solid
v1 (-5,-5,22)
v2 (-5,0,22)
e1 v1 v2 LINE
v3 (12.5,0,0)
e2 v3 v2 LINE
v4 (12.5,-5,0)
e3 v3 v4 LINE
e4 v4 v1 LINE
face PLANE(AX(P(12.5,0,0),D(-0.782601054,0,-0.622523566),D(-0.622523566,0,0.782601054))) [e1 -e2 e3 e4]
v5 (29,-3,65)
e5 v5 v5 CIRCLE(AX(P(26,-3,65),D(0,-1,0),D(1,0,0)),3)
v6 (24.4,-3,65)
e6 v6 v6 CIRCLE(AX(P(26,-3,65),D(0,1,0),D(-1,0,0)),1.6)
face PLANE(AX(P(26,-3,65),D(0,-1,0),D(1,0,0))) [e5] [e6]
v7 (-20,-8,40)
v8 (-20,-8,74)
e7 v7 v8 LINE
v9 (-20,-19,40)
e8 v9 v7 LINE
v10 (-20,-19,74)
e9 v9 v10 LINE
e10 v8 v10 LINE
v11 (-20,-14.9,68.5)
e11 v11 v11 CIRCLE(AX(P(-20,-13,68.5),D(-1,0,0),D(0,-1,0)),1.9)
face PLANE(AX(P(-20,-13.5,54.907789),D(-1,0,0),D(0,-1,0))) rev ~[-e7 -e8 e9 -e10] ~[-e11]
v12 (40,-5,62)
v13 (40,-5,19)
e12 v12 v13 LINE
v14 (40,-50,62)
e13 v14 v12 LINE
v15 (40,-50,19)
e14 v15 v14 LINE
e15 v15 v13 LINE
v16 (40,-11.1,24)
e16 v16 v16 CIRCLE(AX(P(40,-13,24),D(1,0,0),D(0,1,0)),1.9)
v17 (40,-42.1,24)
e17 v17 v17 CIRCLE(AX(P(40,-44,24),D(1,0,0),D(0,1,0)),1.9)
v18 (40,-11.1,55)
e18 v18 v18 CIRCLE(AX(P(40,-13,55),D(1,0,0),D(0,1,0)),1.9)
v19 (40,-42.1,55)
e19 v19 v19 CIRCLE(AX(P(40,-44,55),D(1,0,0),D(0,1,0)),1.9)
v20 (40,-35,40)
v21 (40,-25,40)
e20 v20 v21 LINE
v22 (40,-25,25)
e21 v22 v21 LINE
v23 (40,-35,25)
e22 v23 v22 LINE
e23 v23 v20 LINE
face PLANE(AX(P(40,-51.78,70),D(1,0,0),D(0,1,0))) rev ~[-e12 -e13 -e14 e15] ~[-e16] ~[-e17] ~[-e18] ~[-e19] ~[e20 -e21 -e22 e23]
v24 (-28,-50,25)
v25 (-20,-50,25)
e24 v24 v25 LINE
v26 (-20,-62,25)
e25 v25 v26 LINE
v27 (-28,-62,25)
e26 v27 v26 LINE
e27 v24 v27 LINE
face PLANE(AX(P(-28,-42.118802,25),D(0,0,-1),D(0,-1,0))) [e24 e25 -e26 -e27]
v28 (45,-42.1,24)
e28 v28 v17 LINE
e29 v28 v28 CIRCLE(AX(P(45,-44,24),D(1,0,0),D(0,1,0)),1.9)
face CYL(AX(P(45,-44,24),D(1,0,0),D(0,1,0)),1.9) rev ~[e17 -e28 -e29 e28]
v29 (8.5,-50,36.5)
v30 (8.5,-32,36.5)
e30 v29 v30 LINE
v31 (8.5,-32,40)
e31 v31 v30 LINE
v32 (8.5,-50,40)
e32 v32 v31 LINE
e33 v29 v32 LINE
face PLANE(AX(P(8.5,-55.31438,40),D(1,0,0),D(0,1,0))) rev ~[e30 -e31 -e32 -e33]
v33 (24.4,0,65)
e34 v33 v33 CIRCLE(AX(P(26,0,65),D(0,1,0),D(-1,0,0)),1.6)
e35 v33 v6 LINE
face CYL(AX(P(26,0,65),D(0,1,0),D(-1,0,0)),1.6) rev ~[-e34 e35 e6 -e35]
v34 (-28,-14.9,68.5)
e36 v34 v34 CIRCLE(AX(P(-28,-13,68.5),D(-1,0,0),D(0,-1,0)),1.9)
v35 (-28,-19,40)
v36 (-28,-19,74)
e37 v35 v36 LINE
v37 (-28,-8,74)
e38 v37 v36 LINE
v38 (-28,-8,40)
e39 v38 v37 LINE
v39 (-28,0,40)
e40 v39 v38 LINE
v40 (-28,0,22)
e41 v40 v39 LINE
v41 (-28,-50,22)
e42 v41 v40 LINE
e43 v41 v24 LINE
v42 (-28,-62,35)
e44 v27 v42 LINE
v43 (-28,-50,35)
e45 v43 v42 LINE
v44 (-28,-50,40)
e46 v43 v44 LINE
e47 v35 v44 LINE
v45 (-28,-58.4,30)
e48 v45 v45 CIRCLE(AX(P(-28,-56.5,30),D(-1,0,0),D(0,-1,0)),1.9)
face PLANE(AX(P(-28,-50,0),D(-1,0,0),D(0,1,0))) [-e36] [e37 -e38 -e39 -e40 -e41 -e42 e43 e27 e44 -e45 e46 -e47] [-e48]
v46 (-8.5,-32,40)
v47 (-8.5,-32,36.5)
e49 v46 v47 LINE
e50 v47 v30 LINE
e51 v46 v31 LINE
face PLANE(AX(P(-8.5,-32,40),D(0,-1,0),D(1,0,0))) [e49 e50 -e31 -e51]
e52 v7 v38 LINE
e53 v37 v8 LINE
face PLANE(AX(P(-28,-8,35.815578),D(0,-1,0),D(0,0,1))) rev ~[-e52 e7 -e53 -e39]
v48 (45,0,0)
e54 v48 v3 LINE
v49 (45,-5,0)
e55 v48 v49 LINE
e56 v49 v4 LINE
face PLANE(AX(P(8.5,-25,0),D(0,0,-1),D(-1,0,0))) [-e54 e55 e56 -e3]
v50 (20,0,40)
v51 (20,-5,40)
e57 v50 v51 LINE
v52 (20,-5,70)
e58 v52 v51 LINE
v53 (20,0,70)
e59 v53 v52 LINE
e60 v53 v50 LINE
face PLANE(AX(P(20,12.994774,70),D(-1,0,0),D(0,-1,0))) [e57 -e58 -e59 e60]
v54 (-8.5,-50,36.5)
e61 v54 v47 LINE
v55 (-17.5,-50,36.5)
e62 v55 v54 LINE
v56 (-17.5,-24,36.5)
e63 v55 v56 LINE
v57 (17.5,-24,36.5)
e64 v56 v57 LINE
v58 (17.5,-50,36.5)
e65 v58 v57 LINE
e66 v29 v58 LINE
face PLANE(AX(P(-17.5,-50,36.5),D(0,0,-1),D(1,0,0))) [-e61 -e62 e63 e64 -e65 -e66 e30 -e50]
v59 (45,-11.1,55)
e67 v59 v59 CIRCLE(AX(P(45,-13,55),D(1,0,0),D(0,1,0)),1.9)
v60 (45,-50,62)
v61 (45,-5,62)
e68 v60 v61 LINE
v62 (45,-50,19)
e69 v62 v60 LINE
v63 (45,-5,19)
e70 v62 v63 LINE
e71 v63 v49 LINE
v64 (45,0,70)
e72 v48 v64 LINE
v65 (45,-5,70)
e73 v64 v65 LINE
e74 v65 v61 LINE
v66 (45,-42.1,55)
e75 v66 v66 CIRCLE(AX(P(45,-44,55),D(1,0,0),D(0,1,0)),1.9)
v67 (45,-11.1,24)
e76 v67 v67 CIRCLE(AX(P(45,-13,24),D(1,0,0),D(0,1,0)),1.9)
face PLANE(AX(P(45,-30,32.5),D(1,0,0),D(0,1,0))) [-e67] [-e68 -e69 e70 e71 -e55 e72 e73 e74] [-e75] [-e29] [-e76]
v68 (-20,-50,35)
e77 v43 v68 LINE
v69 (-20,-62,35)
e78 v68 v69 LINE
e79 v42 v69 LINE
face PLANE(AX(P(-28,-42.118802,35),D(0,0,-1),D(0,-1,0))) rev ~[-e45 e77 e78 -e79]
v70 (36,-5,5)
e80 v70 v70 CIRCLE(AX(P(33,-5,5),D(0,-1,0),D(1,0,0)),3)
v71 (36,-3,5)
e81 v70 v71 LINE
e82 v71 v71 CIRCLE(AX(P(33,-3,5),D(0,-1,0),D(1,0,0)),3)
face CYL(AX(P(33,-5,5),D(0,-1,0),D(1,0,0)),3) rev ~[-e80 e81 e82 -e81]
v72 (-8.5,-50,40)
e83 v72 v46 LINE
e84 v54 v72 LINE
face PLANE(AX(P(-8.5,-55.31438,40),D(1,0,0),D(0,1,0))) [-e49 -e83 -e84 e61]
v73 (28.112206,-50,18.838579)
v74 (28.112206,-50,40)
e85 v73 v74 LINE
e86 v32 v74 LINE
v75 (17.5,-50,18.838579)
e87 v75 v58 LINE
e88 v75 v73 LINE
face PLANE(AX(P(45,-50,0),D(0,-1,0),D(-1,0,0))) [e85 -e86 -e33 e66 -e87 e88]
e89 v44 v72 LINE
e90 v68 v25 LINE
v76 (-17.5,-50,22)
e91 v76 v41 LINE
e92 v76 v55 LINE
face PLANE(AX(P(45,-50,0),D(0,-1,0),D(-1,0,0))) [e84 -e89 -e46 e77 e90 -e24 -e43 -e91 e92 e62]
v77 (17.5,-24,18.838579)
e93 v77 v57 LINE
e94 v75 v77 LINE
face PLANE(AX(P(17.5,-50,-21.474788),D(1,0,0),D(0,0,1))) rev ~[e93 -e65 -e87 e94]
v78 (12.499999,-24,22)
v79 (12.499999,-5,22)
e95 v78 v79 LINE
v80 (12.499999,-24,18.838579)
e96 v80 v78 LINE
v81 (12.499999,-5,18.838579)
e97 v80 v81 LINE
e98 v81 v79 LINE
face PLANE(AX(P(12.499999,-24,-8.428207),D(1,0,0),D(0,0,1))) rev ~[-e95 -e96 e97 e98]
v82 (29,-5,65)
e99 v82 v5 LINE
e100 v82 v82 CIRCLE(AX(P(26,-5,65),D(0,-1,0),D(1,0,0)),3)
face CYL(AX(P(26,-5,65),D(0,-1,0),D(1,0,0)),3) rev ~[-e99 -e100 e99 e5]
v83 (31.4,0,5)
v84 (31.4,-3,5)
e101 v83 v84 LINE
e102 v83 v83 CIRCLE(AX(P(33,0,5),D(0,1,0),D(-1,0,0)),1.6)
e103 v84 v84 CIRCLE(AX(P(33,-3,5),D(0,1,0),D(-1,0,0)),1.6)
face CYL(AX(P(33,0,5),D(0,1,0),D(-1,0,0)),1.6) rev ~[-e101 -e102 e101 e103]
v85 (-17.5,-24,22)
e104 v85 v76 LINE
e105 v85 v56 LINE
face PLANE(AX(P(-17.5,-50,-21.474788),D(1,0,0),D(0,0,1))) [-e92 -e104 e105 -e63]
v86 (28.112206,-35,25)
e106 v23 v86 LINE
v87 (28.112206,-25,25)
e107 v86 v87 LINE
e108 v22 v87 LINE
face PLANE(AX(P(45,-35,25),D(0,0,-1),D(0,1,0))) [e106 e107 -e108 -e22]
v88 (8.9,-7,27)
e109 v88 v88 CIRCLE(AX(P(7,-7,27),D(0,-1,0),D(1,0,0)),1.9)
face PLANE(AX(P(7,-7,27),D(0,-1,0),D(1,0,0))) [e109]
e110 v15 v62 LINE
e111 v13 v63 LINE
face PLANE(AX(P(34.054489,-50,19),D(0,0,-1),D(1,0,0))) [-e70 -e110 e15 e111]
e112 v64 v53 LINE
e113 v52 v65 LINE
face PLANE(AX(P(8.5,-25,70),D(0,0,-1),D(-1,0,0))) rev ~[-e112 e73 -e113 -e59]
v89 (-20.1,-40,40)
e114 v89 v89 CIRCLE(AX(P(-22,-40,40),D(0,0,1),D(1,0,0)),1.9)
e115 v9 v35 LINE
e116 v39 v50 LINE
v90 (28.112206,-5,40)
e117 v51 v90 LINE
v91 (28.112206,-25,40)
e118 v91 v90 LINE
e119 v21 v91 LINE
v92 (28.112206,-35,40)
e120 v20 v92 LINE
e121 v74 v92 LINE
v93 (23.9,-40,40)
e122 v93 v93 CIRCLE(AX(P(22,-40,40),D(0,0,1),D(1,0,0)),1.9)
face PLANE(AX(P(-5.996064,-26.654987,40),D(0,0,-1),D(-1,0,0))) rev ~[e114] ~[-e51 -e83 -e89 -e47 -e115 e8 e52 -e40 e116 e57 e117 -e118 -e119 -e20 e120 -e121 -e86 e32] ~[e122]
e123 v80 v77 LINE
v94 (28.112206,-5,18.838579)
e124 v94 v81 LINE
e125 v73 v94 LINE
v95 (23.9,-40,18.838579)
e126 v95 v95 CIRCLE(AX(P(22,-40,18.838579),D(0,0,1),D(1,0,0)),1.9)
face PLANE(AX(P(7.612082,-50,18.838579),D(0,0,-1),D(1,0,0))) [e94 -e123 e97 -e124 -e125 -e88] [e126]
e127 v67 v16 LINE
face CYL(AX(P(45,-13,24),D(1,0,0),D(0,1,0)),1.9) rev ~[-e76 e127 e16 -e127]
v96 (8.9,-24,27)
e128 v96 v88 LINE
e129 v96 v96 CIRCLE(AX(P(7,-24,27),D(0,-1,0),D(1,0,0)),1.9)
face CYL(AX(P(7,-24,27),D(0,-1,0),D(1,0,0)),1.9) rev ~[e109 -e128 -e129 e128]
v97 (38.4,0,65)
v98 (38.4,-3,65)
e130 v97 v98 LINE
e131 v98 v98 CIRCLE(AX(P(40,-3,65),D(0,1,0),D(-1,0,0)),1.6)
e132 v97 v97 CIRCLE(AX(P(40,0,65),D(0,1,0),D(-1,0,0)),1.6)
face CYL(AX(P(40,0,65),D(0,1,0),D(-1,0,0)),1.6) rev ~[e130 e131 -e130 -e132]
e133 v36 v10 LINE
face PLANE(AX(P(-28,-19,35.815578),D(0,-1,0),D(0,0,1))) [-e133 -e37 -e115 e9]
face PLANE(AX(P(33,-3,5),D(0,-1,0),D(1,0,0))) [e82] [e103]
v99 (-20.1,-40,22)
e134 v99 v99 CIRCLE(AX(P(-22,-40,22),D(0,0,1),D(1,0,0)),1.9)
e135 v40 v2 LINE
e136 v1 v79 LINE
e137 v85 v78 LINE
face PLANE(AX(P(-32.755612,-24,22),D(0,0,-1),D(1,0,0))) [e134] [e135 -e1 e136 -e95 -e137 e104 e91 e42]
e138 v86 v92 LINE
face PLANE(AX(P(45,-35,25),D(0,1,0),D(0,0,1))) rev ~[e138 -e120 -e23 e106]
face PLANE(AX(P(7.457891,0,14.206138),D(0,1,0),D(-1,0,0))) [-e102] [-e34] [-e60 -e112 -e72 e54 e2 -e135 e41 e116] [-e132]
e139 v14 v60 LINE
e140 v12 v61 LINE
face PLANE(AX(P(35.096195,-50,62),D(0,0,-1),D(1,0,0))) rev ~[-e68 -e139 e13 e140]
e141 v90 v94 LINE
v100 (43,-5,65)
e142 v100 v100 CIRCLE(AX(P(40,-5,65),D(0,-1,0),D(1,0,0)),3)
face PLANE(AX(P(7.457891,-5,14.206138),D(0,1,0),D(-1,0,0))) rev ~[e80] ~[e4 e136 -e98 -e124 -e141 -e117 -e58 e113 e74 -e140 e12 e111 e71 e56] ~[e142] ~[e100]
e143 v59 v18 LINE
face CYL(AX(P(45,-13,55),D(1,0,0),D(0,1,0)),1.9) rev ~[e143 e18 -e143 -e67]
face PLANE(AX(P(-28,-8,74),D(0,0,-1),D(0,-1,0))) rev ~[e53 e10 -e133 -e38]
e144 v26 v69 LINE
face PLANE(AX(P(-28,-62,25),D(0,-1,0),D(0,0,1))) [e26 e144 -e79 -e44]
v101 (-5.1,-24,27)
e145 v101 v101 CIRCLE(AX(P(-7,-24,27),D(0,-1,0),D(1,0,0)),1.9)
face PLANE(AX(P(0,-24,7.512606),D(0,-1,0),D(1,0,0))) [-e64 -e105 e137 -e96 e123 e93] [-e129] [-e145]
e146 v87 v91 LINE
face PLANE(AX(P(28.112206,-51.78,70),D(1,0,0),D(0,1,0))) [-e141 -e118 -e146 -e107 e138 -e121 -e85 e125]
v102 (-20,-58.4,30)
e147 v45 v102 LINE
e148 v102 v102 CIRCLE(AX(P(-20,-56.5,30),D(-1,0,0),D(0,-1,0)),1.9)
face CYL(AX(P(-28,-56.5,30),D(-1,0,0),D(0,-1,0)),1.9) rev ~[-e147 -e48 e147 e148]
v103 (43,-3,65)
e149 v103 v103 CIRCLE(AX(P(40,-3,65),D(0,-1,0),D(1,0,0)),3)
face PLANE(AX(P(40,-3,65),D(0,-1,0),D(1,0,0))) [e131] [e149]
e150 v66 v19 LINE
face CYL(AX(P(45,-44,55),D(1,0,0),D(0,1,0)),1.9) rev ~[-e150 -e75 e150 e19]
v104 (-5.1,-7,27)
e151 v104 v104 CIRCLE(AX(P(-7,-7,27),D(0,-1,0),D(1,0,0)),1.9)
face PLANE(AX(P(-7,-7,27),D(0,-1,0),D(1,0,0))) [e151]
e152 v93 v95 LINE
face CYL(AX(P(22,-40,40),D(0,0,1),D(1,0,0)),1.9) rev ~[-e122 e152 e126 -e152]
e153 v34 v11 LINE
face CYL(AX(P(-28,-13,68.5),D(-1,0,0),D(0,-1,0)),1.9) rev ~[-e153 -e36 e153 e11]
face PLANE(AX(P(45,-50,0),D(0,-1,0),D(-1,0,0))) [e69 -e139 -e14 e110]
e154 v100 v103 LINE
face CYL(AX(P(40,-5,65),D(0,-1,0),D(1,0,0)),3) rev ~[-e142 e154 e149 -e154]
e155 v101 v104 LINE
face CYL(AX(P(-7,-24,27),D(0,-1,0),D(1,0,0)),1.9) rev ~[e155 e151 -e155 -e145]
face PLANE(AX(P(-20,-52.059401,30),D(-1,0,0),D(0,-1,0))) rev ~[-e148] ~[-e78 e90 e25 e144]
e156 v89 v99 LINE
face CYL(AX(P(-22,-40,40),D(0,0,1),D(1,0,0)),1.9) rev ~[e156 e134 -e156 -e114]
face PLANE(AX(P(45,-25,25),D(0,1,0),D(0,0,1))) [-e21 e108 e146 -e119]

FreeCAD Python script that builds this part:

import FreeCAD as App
import Part
import Sketcher
Q = App.Units.Quantity

doc = App.newDocument("Part")
body = doc.addObject("PartDesign::Body", "Body")

sketch1 = body.newObject("Sketcher::SketchObject", "Sketch")
sketch1.AttachmentSupport = (doc.getObject("XY_Plane"), [""])
sketch1.MapMode = "FlatFace"
sketch1.addGeometry([
    Part.LineSegment(App.Vector(45, 0, 0), App.Vector(-28, 0, 0)),
    Part.LineSegment(App.Vector(-28, 0, 0), App.Vector(-28, -50, 0)),
    Part.LineSegment(App.Vector(-28, -50, 0), App.Vector(45, -50, 0)),
    Part.LineSegment(App.Vector(45, -50, 0), App.Vector(45, 0, 0)),
], False)
sketch1.addConstraint([
    Sketcher.Constraint("Coincident", 0, 2, 1, 1),
    Sketcher.Constraint("Coincident", 1, 2, 2, 1),
    Sketcher.Constraint("Coincident", 2, 2, 3, 1),
    Sketcher.Constraint("Coincident", 3, 2, 0, 1),
    Sketcher.Constraint("Horizontal", 0),
    Sketcher.Constraint("Vertical", 1),
    Sketcher.Constraint("Horizontal", 2),
    Sketcher.Constraint("Vertical", 3),
    Sketcher.Constraint("PointOnObject", 0, 2, -1),
    Sketcher.Constraint("DistanceX", 0, 2, 0, 1, Q("73 mm")),
    Sketcher.Constraint("DistanceY", 1, 2, 1, 1, Q("50 mm")),
    Sketcher.Constraint("DistanceX", 0, 2, -1, 1, Q("28 mm")),
])
pad1 = body.newObject("PartDesign::Pad", "Pad")
pad1.Profile = sketch1
pad1.Length = 70

sketch2 = body.newObject("Sketcher::SketchObject", "Sketch001")
sketch2.AttachmentSupport = (doc.getObject("XY_Plane"), [""])
sketch2.MapMode = "FlatFace"
sketch2.AttachmentOffset = App.Placement(App.Vector(0, 0, 70), App.Rotation())
sketch2.addGeometry([
    Part.LineSegment(App.Vector(28, -5, 0), App.Vector(28, -52, 0)),
    Part.LineSegment(App.Vector(28, -52, 0), App.Vector(40, -52, 0)),
    Part.LineSegment(App.Vector(40, -52, 0), App.Vector(40, -5, 0)),
    Part.LineSegment(App.Vector(40, -5, 0), App.Vector(28, -5, 0)),
], False)
sketch2.addConstraint([
    Sketcher.Constraint("Coincident", 0, 2, 1, 1),
    Sketcher.Constraint("Coincident", 1, 2, 2, 1),
    Sketcher.Constraint("Coincident", 2, 2, 3, 1),
    Sketcher.Constraint("Coincident", 3, 2, 0, 1),
    Sketcher.Constraint("Vertical", 0),
    Sketcher.Constraint("Horizontal", 1),
    Sketcher.Constraint("Vertical", 2),
    Sketcher.Constraint("Horizontal", 3),
    Sketcher.Constraint("DistanceX", -1, 1, 1, 2, Q("40 mm")),
    Sketcher.Constraint("DistanceY", 2, 2, -1, 1, Q("5 mm")),
    Sketcher.Constraint("DistanceY", 0, 2, 0, 1, Q("46.78 mm")),
    Sketcher.Constraint("DistanceX", 1, 1, 1, 2, Q("11.887794 mm")),
])
pocket1 = body.newObject("PartDesign::Pocket", "Pocket")
pocket1.Profile = sketch2
pocket1.Type = "ThroughAll"

sketch3 = body.newObject("Sketcher::SketchObject", "Sketch002")
sketch3.AttachmentSupport = (doc.getObject("XY_Plane"), [""])
sketch3.MapMode = "FlatFace"
sketch3.AttachmentOffset = App.Placement(App.Vector(0, 0, 70), App.Rotation())
sketch3.addGeometry([
    Part.LineSegment(App.Vector(30, -65, 0), App.Vector(30, -5, 0)),
    Part.LineSegment(App.Vector(30, -5, 0), App.Vector(20, -5, 0)),
    Part.LineSegment(App.Vector(20, -5, 0), App.Vector(20, 13, 0)),
    Part.LineSegment(App.Vector(20, 13, 0), App.Vector(-41, 13, 0)),
    Part.LineSegment(App.Vector(-41, 13, 0), App.Vector(-41, -65, 0)),
    Part.LineSegment(App.Vector(-41, -65, 0), App.Vector(30, -65, 0)),
], False)
sketch3.addConstraint([
    Sketcher.Constraint("Coincident", 0, 2, 1, 1),
    Sketcher.Constraint("Coincident", 1, 2, 2, 1),
    Sketcher.Constraint("Coincident", 2, 2, 3, 1),
    Sketcher.Constraint("Coincident", 3, 2, 4, 1),
    Sketcher.Constraint("Coincident", 4, 2, 5, 1),
    Sketcher.Constraint("Coincident", 5, 2, 0, 1),
    Sketcher.Constraint("Vertical", 0),
    Sketcher.Constraint("Horizontal", 1),
    Sketcher.Constraint("Vertical", 2),
    Sketcher.Constraint("Horizontal", 3),
    Sketcher.Constraint("Vertical", 4),
    Sketcher.Constraint("Horizontal", 5),
    Sketcher.Constraint("DistanceX", 1, 2, 1, 1, Q("10 mm")),
    Sketcher.Constraint("DistanceX", -1, 1, 0, 2, Q("30 mm")),
    Sketcher.Constraint("DistanceY", 0, 2, -1, 1, Q("5 mm")),
    Sketcher.Constraint("DistanceY", 4, 2, 4, 1, Q("78.090798 mm")),
    Sketcher.Constraint("DistanceX", 3, 2, 3, 1, Q("60.783405 mm")),
    Sketcher.Constraint("DistanceY", 0, 1, 0, 2, Q("60.096024 mm")),
])
pocket2 = body.newObject("PartDesign::Pocket", "Pocket001")
pocket2.Profile = sketch3
pocket2.Length = 30

sketch4 = body.newObject("Sketcher::SketchObject", "Sketch003")
sketch4.AttachmentSupport = (doc.getObject("XY_Plane"), [""])
sketch4.MapMode = "FlatFace"
sketch4.AttachmentOffset = App.Placement(App.Vector(0, 0, 40), App.Rotation())
sketch4.addGeometry([
    Part.Circle(App.Vector(-22, -40, 0), App.Vector(0, 0, 1), 1.9),
    Part.Circle(App.Vector(22, -40, 0), App.Vector(0, 0, 1), 1.9),
], False)
sketch4.addConstraint([
    Sketcher.Constraint("Equal", 0, 1),
    Sketcher.Constraint("Symmetric", 0, 3, 1, 3, -2),
    Sketcher.Constraint("Diameter", 0, Q("3.8 mm")),
    Sketcher.Constraint("DistanceX", 0, 3, -1, 1, Q("22 mm")),
    Sketcher.Constraint("DistanceY", 0, 3, -1, 1, Q("40 mm")),
])
pocket3 = body.newObject("PartDesign::Pocket", "Pocket002")
pocket3.Profile = sketch4
pocket3.Type = "ThroughAll"

sketch5 = body.newObject("Sketcher::SketchObject", "Sketch004")
sketch5.AttachmentSupport = (doc.getObject("XY_Plane"), [""])
sketch5.MapMode = "FlatFace"
sketch5.AttachmentOffset = App.Placement(App.Vector(0, 0, 40), App.Rotation())
sketch5.addGeometry([
    Part.LineSegment(App.Vector(-8, -32, 0), App.Vector(-8, -55, 0)),
    Part.LineSegment(App.Vector(-8, -55, 0), App.Vector(8, -55, 0)),
    Part.LineSegment(App.Vector(8, -55, 0), App.Vector(8, -32, 0)),
    Part.LineSegment(App.Vector(8, -32, 0), App.Vector(-8, -32, 0)),
], False)
sketch5.addConstraint([
    Sketcher.Constraint("Coincident", 0, 2, 1, 1),
    Sketcher.Constraint("Coincident", 1, 2, 2, 1),
    Sketcher.Constraint("Coincident", 2, 2, 3, 1),
    Sketcher.Constraint("Coincident", 3, 2, 0, 1),
    Sketcher.Constraint("Vertical", 0),
    Sketcher.Constraint("Horizontal", 1),
    Sketcher.Constraint("Vertical", 2),
    Sketcher.Constraint("Horizontal", 3),
    Sketcher.Constraint("DistanceX", 1, 1, 1, 2, Q("17 mm")),
    Sketcher.Constraint("DistanceY", 2, 2, -1, 1, Q("32 mm")),
    Sketcher.Constraint("DistanceX", 0, 2, -1, 1, Q("8.5 mm")),
    Sketcher.Constraint("DistanceY", 0, 2, 0, 1, Q("23.314381 mm")),
])
pocket4 = body.newObject("PartDesign::Pocket", "Pocket003")
pocket4.Profile = sketch5
pocket4.Type = "ThroughAll"

sketch6 = body.newObject("Sketcher::SketchObject", "Sketch005")
sketch6.AttachmentSupport = (doc.getObject("XZ_Plane"), [""])
sketch6.MapMode = "FlatFace"
sketch6.AttachmentOffset = App.Placement(App.Vector(0, 0, 50), App.Rotation())
sketch6.addGeometry([
    Part.LineSegment(App.Vector(-18, 37, 0), App.Vector(-18, -21, 0)),
    Part.LineSegment(App.Vector(-18, -21, 0), App.Vector(18, -21, 0)),
    Part.LineSegment(App.Vector(18, -21, 0), App.Vector(18, 37, 0)),
    Part.LineSegment(App.Vector(18, 37, 0), App.Vector(-18, 37, 0)),
], False)
sketch6.addConstraint([
    Sketcher.Constraint("Coincident", 0, 2, 1, 1),
    Sketcher.Constraint("Coincident", 1, 2, 2, 1),
    Sketcher.Constraint("Coincident", 2, 2, 3, 1),
    Sketcher.Constraint("Coincident", 3, 2, 0, 1),
    Sketcher.Constraint("Vertical", 0),
    Sketcher.Constraint("Horizontal", 1),
    Sketcher.Constraint("Vertical", 2),
    Sketcher.Constraint("Horizontal", 3),
    Sketcher.Constraint("DistanceX", 1, 1, 1, 2, Q("35 mm")),
    Sketcher.Constraint("DistanceX", 0, 2, -1, 1, Q("17.5 mm")),
    Sketcher.Constraint("DistanceY", -1, 1, 2, 2, Q("36.5 mm")),
    Sketcher.Constraint("DistanceY", 0, 2, 0, 1, Q("57.974789 mm")),
])
pocket5 = body.newObject("PartDesign::Pocket", "Pocket004")
pocket5.Profile = sketch6
pocket5.Length = 26

sketch7 = body.newObject("Sketcher::SketchObject", "Sketch006")
sketch7.AttachmentSupport = (doc.getObject("XZ_Plane"), [""])
sketch7.MapMode = "FlatFace"
sketch7.AttachmentOffset = App.Placement(App.Vector(0, 0, 24), App.Rotation())
sketch7.addGeometry([
    Part.LineSegment(App.Vector(-33, 22, 0), App.Vector(-33, -8, 0)),
    Part.LineSegment(App.Vector(-33, -8, 0), App.Vector(12, -8, 0)),
    Part.LineSegment(App.Vector(12, -8, 0), App.Vector(12, 22, 0)),
    Part.LineSegment(App.Vector(12, 22, 0), App.Vector(-33, 22, 0)),
], False)
sketch7.addConstraint([
    Sketcher.Constraint("Coincident", 0, 2, 1, 1),
    Sketcher.Constraint("Coincident", 1, 2, 2, 1),
    Sketcher.Constraint("Coincident", 2, 2, 3, 1),
    Sketcher.Constraint("Coincident", 3, 2, 0, 1),
    Sketcher.Constraint("Vertical", 0),
    Sketcher.Constraint("Horizontal", 1),
    Sketcher.Constraint("Vertical", 2),
    Sketcher.Constraint("Horizontal", 3),
    Sketcher.Constraint("DistanceY", -1, 1, 2, 2, Q("22 mm")),
    Sketcher.Constraint("DistanceX", -1, 1, 1, 2, Q("12.499999 mm")),
    Sketcher.Constraint("DistanceX", 1, 1, 1, 2, Q("45.255611 mm")),
    Sketcher.Constraint("DistanceY", 0, 2, 0, 1, Q("30.428207 mm")),
])
pocket6 = body.newObject("PartDesign::Pocket", "Pocket005")
pocket6.Profile = sketch7
pocket6.Type = "ThroughAll"
pocket6.Midplane = True

sketch8 = body.newObject("Sketcher::SketchObject", "Sketch007")
sketch8.AttachmentSupport = (doc.getObject("XZ_Plane"), [""])
sketch8.MapMode = "FlatFace"
sketch8.AttachmentOffset = App.Placement(App.Vector(0, 0, 50), App.Rotation())
sketch8.addGeometry([
    Part.LineSegment(App.Vector(8, 19, 0), App.Vector(8, -11, 0)),
    Part.LineSegment(App.Vector(8, -11, 0), App.Vector(34, -11, 0)),
    Part.LineSegment(App.Vector(34, -11, 0), App.Vector(34, 19, 0)),
    Part.LineSegment(App.Vector(34, 19, 0), App.Vector(8, 19, 0)),
], False)
sketch8.addConstraint([
    Sketcher.Constraint("Coincident", 0, 2, 1, 1),
    Sketcher.Constraint("Coincident", 1, 2, 2, 1),
    Sketcher.Constraint("Coincident", 2, 2, 3, 1),
    Sketcher.Constraint("Coincident", 3, 2, 0, 1),
    Sketcher.Constraint("Vertical", 0),
    Sketcher.Constraint("Horizontal", 1),
    Sketcher.Constraint("Vertical", 2),
    Sketcher.Constraint("Horizontal", 3),
    Sketcher.Constraint("DistanceX", 1, 1, 1, 2, Q("26.242121 mm")),
    Sketcher.Constraint("DistanceY", 0, 2, 0, 1, Q("29.741062 mm")),
    Sketcher.Constraint("DistanceX", -1, 1, 0, 2, Q("7.612082 mm")),
    Sketcher.Constraint("DistanceY", -1, 1, 2, 2, Q("18.838579 mm")),
])
pocket7 = body.newObject("PartDesign::Pocket", "Pocket006")
pocket7.Profile = sketch8
pocket7.Length = 45

sketch9 = body.newObject("Sketcher::SketchObject", "Sketch008")
sketch9.AttachmentSupport = (doc.getObject("XZ_Plane"), [""])
sketch9.MapMode = "FlatFace"
sketch9.AttachmentOffset = App.Placement(App.Vector(0, 0, 50), App.Rotation())
sketch9.addGeometry([
    Part.LineSegment(App.Vector(35, 76, 0), App.Vector(35, 62, 0)),
    Part.LineSegment(App.Vector(35, 62, 0), App.Vector(51, 62, 0)),
    Part.LineSegment(App.Vector(51, 62, 0), App.Vector(51, 76, 0)),
    Part.LineSegment(App.Vector(51, 76, 0), App.Vector(35, 76, 0)),
    Part.LineSegment(App.Vector(34, 19, 0), App.Vector(34, -13, 0)),
    Part.LineSegment(App.Vector(34, -13, 0), App.Vector(59, -13, 0)),
    Part.LineSegment(App.Vector(59, -13, 0), App.Vector(59, 19, 0)),
    Part.LineSegment(App.Vector(59, 19, 0), App.Vector(34, 19, 0)),
], False)
sketch9.addConstraint([
    Sketcher.Constraint("Coincident", 0, 2, 1, 1),
    Sketcher.Constraint("Coincident", 1, 2, 2, 1),
    Sketcher.Constraint("Coincident", 2, 2, 3, 1),
    Sketcher.Constraint("Coincident", 3, 2, 0, 1),
    Sketcher.Constraint("Coincident", 4, 2, 5, 1),
    Sketcher.Constraint("Coincident", 5, 2, 6, 1),
    Sketcher.Constraint("Coincident", 6, 2, 7, 1),
    Sketcher.Constraint("Coincident", 7, 2, 4, 1),
    Sketcher.Constraint("Vertical", 0),
    Sketcher.Constraint("Horizontal", 1),
    Sketcher.Constraint("Vertical", 2),
    Sketcher.Constraint("Horizontal", 3),
    Sketcher.Constraint("Vertical", 4),
    Sketcher.Constraint("Horizontal", 5),
    Sketcher.Constraint("Vertical", 6),
    Sketcher.Constraint("Horizontal", 7),
    Sketcher.Constraint("DistanceY", -1, 1, 0, 2, Q("62 mm")),
    Sketcher.Constraint("DistanceY", -1, 1, 6, 2, Q("19 mm")),
    Sketcher.Constraint("DistanceY", 4, 2, 4, 1, Q("31.67345 mm")),
    Sketcher.Constraint("DistanceX", 1, 1, 1, 2, Q("15.625622 mm")),
    Sketcher.Constraint("DistanceX", 5, 1, 5, 2, Q("24.610352 mm")),
    Sketcher.Constraint("DistanceY", 0, 2, 0, 1, Q("14.392597 mm")),
    Sketcher.Constraint("DistanceX", -1, 1, 4, 2, Q("34.054489 mm")),
    Sketcher.Constraint("DistanceX", 4, 2, 1, 2, Q("16.667328 mm")),
])
pocket8 = body.newObject("PartDesign::Pocket", "Pocket007")
pocket8.Profile = sketch9
pocket8.Length = 45

sketch10 = body.newObject("Sketcher::SketchObject", "Sketch009")
sketch10.AttachmentSupport = (doc.getObject("YZ_Plane"), [""])
sketch10.MapMode = "FlatFace"
sketch10.AttachmentOffset = App.Placement(App.Vector(0, 0, 45), App.Rotation())
sketch10.addGeometry([
    Part.Circle(App.Vector(-44, 55, 0), App.Vector(0, 0, 1), 1.9),
    Part.Circle(App.Vector(-13, 24, 0), App.Vector(0, 0, 1), 1.9),
    Part.Circle(App.Vector(-13, 55, 0), App.Vector(0, 0, 1), 1.9),
    Part.Circle(App.Vector(-44, 24, 0), App.Vector(0, 0, 1), 1.9),
], False)
sketch10.addConstraint([
    Sketcher.Constraint("Equal", 0, 1),
    Sketcher.Constraint("Equal", 1, 2),
    Sketcher.Constraint("Equal", 2, 3),
    Sketcher.Constraint("Horizontal", 0, 3, 2, 3),
    Sketcher.Constraint("Horizontal", 1, 3, 3, 3),
    Sketcher.Constraint("Vertical", 1, 3, 2, 3),
    Sketcher.Constraint("Vertical", 0, 3, 3, 3),
    Sketcher.Constraint("Diameter", 0, Q("3.8 mm")),
    Sketcher.Constraint("DistanceX", 0, 3, -1, 1, Q("44 mm")),
    Sketcher.Constraint("DistanceY", -1, 1, 0, 3, Q("55 mm")),
    Sketcher.Constraint("DistanceX", 1, 3, -1, 1, Q("13 mm")),
    Sketcher.Constraint("DistanceY", -1, 1, 1, 3, Q("24 mm")),
])
pocket9 = body.newObject("PartDesign::Pocket", "Pocket008")
pocket9.Profile = sketch10
pocket9.Length = 13

sketch11 = body.newObject("Sketcher::SketchObject", "Sketch010")
sketch11.AttachmentSupport = (doc.getObject("XZ_Plane"), [""])
sketch11.MapMode = "FlatFace"
sketch11.addGeometry([
    Part.Circle(App.Vector(33, 5, 0), App.Vector(0, 0, 1), 1.6),
    Part.Circle(App.Vector(40, 65, 0), App.Vector(0, 0, 1), 1.6),
    Part.Circle(App.Vector(26, 65, 0), App.Vector(0, 0, 1), 1.6),
], False)
sketch11.addConstraint([
    Sketcher.Constraint("Equal", 0, 1),
    Sketcher.Constraint("Equal", 1, 2),
    Sketcher.Constraint("Horizontal", 1, 3, 2, 3),
    Sketcher.Constraint("Diameter", 0, Q("3.2 mm")),
    Sketcher.Constraint("DistanceX", -1, 1, 0, 3, Q("33 mm")),
    Sketcher.Constraint("DistanceY", -1, 1, 0, 3, Q("5 mm")),
    Sketcher.Constraint("DistanceX", -1, 1, 1, 3, Q("40 mm")),
    Sketcher.Constraint("DistanceY", -1, 1, 1, 3, Q("65 mm")),
    Sketcher.Constraint("DistanceX", -1, 1, 2, 3, Q("26 mm")),
])
pocket10 = body.newObject("PartDesign::Pocket", "Pocket009")
pocket10.Profile = sketch11
pocket10.Length = 5
pocket10.Reversed = True

sketch12 = body.newObject("Sketcher::SketchObject", "Sketch011")
sketch12.AttachmentSupport = (doc.getObject("YZ_Plane"), [""])
sketch12.MapMode = "FlatFace"
sketch12.AttachmentOffset = App.Placement(App.Vector(0, 0, 45), App.Rotation())
sketch12.addGeometry([
    Part.LineSegment(App.Vector(-35, 40, 0), App.Vector(-35, 25, 0)),
    Part.LineSegment(App.Vector(-35, 25, 0), App.Vector(-25, 25, 0)),
    Part.LineSegment(App.Vector(-25, 25, 0), App.Vector(-25, 40, 0)),
    Part.LineSegment(App.Vector(-25, 40, 0), App.Vector(-35, 40, 0)),
], False)
sketch12.addConstraint([
    Sketcher.Constraint("Coincident", 0, 2, 1, 1),
    Sketcher.Constraint("Coincident", 1, 2, 2, 1),
    Sketcher.Constraint("Coincident", 2, 2, 3, 1),
    Sketcher.Constraint("Coincident", 3, 2, 0, 1),
    Sketcher.Constraint("Vertical", 0),
    Sketcher.Constraint("Horizontal", 1),
    Sketcher.Constraint("Vertical", 2),
    Sketcher.Constraint("Horizontal", 3),
    Sketcher.Constraint("DistanceX", 1, 1, 1, 2, Q("10 mm")),
    Sketcher.Constraint("DistanceY", 0, 2, 0, 1, Q("15 mm")),
    Sketcher.Constraint("DistanceX", 0, 2, -1, 1, Q("35 mm")),
    Sketcher.Constraint("DistanceY", -1, 1, 0, 2, Q("25 mm")),
])
pad2 = body.newObject("PartDesign::Pad", "Pad001")
pad2.Profile = sketch12
pad2.Length = 23
pad2.Reversed = True

sketch13 = body.newObject("Sketcher::SketchObject", "Sketch012")
sketch13.AttachmentSupport = (doc.getObject("YZ_Plane"), [""])
sketch13.MapMode = "FlatFace"
sketch13.AttachmentOffset = App.Placement(App.Vector(0, 0, -28), App.Rotation())
sketch13.addGeometry([
    Part.LineSegment(App.Vector(-8, 74, 0), App.Vector(-8, 36, 0)),
    Part.LineSegment(App.Vector(-8, 36, 0), App.Vector(-19, 36, 0)),
    Part.LineSegment(App.Vector(-19, 36, 0), App.Vector(-19, 74, 0)),
    Part.LineSegment(App.Vector(-19, 74, 0), App.Vector(-8, 74, 0)),
    Part.LineSegment(App.Vector(-42, 35, 0), App.Vector(-42, 25, 0)),
    Part.LineSegment(App.Vector(-42, 25, 0), App.Vector(-62, 25, 0)),
    Part.LineSegment(App.Vector(-62, 25, 0), App.Vector(-62, 35, 0)),
    Part.LineSegment(App.Vector(-62, 35, 0), App.Vector(-42, 35, 0)),
], False)
sketch13.addConstraint([
    Sketcher.Constraint("Coincident", 0, 2, 1, 1),
    Sketcher.Constraint("Coincident", 1, 2, 2, 1),
    Sketcher.Constraint("Coincident", 2, 2, 3, 1),
    Sketcher.Constraint("Coincident", 3, 2, 0, 1),
    Sketcher.Constraint("Coincident", 4, 2, 5, 1),
    Sketcher.Constraint("Coincident", 5, 2, 6, 1),
    Sketcher.Constraint("Coincident", 6, 2, 7, 1),
    Sketcher.Constraint("Coincident", 7, 2, 4, 1),
    Sketcher.Constraint("Vertical", 0),
    Sketcher.Constraint("Horizontal", 1),
    Sketcher.Constraint("Vertical", 2),
    Sketcher.Constraint("Horizontal", 3),
    Sketcher.Constraint("Vertical", 4),
    Sketcher.Constraint("Horizontal", 5),
    Sketcher.Constraint("Vertical", 6),
    Sketcher.Constraint("Horizontal", 7),
    Sketcher.Constraint("DistanceX", 1, 2, 1, 1, Q("11 mm")),
    Sketcher.Constraint("DistanceY", 4, 2, 4, 1, Q("10 mm")),
    Sketcher.Constraint("DistanceX", 0, 2, -1, 1, Q("8 mm")),
    Sketcher.Constraint("DistanceY", -1, 1, 2, 2, Q("74 mm")),
    Sketcher.Constraint("DistanceY", -1, 1, 4, 2, Q("25 mm")),
    Sketcher.Constraint("DistanceX", 5, 2, -1, 1, Q("62 mm")),
    Sketcher.Constraint("DistanceY", 0, 2, 0, 1, Q("38.184422 mm")),
    Sketcher.Constraint("DistanceX", 5, 2, 5, 1, Q("19.881198 mm")),
])
pad3 = body.newObject("PartDesign::Pad", "Pad002")
pad3.Profile = sketch13
pad3.Length = 8

sketch14 = body.newObject("Sketcher::SketchObject", "Sketch013")
sketch14.AttachmentSupport = (doc.getObject("XZ_Plane"), [""])
sketch14.MapMode = "FlatFace"
sketch14.AttachmentOffset = App.Placement(App.Vector(0, 0, 24), App.Rotation())
sketch14.addGeometry([
    Part.Circle(App.Vector(-7, 27, 0), App.Vector(0, 0, 1), 1.9),
    Part.Circle(App.Vector(7, 27, 0), App.Vector(0, 0, 1), 1.9),
], False)
sketch14.addConstraint([
    Sketcher.Constraint("Equal", 0, 1),
    Sketcher.Constraint("Symmetric", 0, 3, 1, 3, -2),
    Sketcher.Constraint("Diameter", 0, Q("3.8 mm")),
    Sketcher.Constraint("DistanceX", 0, 3, -1, 1, Q("7 mm")),
    Sketcher.Constraint("DistanceY", -1, 1, 0, 3, Q("27 mm")),
])
pocket11 = body.newObject("PartDesign::Pocket", "Pocket010")
pocket11.Profile = sketch14
pocket11.Length = 17

sketch15 = body.newObject("Sketcher::SketchObject", "Sketch014")
sketch15.AttachmentSupport = (doc.getObject("YZ_Plane"), [""])
sketch15.MapMode = "FlatFace"
sketch15.AttachmentOffset = App.Placement(App.Vector(0, 0, -28), App.Rotation())
sketch15.addGeometry([
    Part.Circle(App.Vector(-56.5, 30, 0), App.Vector(0, 0, 1), 1.9),
    Part.Circle(App.Vector(-13, 68.5, 0), App.Vector(0, 0, 1), 1.9),
], False)
sketch15.addConstraint([
    Sketcher.Constraint("Equal", 0, 1),
    Sketcher.Constraint("Diameter", 0, Q("3.8 mm")),
    Sketcher.Constraint("DistanceY", -1, 1, 0, 3, Q("30 mm")),
    Sketcher.Constraint("DistanceX", 1, 3, -1, 1, Q("13 mm")),
    Sketcher.Constraint("DistanceX", 0, 3, -1, 1, Q("56.5 mm")),
    Sketcher.Constraint("DistanceY", -1, 1, 1, 3, Q("68.5 mm")),
])
pocket12 = body.newObject("PartDesign::Pocket", "Pocket011")
pocket12.Profile = sketch15
pocket12.Length = 15
pocket12.Reversed = True

sketch16 = body.newObject("Sketcher::SketchObject", "Sketch015")
sketch16.AttachmentSupport = (doc.getObject("XZ_Plane"), [""])
sketch16.MapMode = "FlatFace"
sketch16.addGeometry([
    Part.LineSegment(App.Vector(12, 0, 0), App.Vector(-5, 22, 0)),
    Part.LineSegment(App.Vector(-5, 22, 0), App.Vector(16, 22, 0)),
    Part.LineSegment(App.Vector(16, 22, 0), App.Vector(12, 0, 0)),
], False)
sketch16.addConstraint([
    Sketcher.Constraint("Coincident", 0, 2, 1, 1),
    Sketcher.Constraint("Coincident", 1, 2, 2, 1),
    Sketcher.Constraint("Coincident", 2, 2, 0, 1),
    Sketcher.Constraint("Horizontal", 1),
    Sketcher.Constraint("PointOnObject", 2, 2, -1),
    Sketcher.Constraint("DistanceX", 0, 2, -1, 1, Q("5 mm")),
    Sketcher.Constraint("DistanceY", -1, 1, 0, 2, Q("22 mm")),
    Sketcher.Constraint("DistanceX", 1, 1, 1, 2, Q("20.71 mm")),
    Sketcher.Constraint("DistanceX", -1, 1, 2, 2, Q("12.5 mm")),
])
pad4 = body.newObject("PartDesign::Pad", "Pad003")
pad4.Profile = sketch16
pad4.Length = 5

sketch17 = body.newObject("Sketcher::SketchObject", "Sketch016")
sketch17.AttachmentSupport = (doc.getObject("XZ_Plane"), [""])
sketch17.MapMode = "FlatFace"
sketch17.AttachmentOffset = App.Placement(App.Vector(0, 0, 5), App.Rotation())
sketch17.addGeometry([
    Part.Circle(App.Vector(26, 65, 0), App.Vector(0, 0, 1), 3),
    Part.Circle(App.Vector(33, 5, 0), App.Vector(0, 0, 1), 3),
    Part.Circle(App.Vector(40, 65, 0), App.Vector(0, 0, 1), 3),
], False)
sketch17.addConstraint([
    Sketcher.Constraint("Equal", 0, 1),
    Sketcher.Constraint("Equal", 1, 2),
    Sketcher.Constraint("Horizontal", 0, 3, 2, 3),
    Sketcher.Constraint("Diameter", 0, Q("6 mm")),
    Sketcher.Constraint("DistanceX", -1, 1, 0, 3, Q("26 mm")),
    Sketcher.Constraint("DistanceY", -1, 1, 0, 3, Q("65 mm")),
    Sketcher.Constraint("DistanceX", -1, 1, 1, 3, Q("33 mm")),
    Sketcher.Constraint("DistanceY", -1, 1, 1, 3, Q("5 mm")),
    Sketcher.Constraint("DistanceX", -1, 1, 2, 3, Q("40 mm")),
])
pocket13 = body.newObject("PartDesign::Pocket", "Pocket012")
pocket13.Profile = sketch17
pocket13.Length = 2

doc.recompute()
